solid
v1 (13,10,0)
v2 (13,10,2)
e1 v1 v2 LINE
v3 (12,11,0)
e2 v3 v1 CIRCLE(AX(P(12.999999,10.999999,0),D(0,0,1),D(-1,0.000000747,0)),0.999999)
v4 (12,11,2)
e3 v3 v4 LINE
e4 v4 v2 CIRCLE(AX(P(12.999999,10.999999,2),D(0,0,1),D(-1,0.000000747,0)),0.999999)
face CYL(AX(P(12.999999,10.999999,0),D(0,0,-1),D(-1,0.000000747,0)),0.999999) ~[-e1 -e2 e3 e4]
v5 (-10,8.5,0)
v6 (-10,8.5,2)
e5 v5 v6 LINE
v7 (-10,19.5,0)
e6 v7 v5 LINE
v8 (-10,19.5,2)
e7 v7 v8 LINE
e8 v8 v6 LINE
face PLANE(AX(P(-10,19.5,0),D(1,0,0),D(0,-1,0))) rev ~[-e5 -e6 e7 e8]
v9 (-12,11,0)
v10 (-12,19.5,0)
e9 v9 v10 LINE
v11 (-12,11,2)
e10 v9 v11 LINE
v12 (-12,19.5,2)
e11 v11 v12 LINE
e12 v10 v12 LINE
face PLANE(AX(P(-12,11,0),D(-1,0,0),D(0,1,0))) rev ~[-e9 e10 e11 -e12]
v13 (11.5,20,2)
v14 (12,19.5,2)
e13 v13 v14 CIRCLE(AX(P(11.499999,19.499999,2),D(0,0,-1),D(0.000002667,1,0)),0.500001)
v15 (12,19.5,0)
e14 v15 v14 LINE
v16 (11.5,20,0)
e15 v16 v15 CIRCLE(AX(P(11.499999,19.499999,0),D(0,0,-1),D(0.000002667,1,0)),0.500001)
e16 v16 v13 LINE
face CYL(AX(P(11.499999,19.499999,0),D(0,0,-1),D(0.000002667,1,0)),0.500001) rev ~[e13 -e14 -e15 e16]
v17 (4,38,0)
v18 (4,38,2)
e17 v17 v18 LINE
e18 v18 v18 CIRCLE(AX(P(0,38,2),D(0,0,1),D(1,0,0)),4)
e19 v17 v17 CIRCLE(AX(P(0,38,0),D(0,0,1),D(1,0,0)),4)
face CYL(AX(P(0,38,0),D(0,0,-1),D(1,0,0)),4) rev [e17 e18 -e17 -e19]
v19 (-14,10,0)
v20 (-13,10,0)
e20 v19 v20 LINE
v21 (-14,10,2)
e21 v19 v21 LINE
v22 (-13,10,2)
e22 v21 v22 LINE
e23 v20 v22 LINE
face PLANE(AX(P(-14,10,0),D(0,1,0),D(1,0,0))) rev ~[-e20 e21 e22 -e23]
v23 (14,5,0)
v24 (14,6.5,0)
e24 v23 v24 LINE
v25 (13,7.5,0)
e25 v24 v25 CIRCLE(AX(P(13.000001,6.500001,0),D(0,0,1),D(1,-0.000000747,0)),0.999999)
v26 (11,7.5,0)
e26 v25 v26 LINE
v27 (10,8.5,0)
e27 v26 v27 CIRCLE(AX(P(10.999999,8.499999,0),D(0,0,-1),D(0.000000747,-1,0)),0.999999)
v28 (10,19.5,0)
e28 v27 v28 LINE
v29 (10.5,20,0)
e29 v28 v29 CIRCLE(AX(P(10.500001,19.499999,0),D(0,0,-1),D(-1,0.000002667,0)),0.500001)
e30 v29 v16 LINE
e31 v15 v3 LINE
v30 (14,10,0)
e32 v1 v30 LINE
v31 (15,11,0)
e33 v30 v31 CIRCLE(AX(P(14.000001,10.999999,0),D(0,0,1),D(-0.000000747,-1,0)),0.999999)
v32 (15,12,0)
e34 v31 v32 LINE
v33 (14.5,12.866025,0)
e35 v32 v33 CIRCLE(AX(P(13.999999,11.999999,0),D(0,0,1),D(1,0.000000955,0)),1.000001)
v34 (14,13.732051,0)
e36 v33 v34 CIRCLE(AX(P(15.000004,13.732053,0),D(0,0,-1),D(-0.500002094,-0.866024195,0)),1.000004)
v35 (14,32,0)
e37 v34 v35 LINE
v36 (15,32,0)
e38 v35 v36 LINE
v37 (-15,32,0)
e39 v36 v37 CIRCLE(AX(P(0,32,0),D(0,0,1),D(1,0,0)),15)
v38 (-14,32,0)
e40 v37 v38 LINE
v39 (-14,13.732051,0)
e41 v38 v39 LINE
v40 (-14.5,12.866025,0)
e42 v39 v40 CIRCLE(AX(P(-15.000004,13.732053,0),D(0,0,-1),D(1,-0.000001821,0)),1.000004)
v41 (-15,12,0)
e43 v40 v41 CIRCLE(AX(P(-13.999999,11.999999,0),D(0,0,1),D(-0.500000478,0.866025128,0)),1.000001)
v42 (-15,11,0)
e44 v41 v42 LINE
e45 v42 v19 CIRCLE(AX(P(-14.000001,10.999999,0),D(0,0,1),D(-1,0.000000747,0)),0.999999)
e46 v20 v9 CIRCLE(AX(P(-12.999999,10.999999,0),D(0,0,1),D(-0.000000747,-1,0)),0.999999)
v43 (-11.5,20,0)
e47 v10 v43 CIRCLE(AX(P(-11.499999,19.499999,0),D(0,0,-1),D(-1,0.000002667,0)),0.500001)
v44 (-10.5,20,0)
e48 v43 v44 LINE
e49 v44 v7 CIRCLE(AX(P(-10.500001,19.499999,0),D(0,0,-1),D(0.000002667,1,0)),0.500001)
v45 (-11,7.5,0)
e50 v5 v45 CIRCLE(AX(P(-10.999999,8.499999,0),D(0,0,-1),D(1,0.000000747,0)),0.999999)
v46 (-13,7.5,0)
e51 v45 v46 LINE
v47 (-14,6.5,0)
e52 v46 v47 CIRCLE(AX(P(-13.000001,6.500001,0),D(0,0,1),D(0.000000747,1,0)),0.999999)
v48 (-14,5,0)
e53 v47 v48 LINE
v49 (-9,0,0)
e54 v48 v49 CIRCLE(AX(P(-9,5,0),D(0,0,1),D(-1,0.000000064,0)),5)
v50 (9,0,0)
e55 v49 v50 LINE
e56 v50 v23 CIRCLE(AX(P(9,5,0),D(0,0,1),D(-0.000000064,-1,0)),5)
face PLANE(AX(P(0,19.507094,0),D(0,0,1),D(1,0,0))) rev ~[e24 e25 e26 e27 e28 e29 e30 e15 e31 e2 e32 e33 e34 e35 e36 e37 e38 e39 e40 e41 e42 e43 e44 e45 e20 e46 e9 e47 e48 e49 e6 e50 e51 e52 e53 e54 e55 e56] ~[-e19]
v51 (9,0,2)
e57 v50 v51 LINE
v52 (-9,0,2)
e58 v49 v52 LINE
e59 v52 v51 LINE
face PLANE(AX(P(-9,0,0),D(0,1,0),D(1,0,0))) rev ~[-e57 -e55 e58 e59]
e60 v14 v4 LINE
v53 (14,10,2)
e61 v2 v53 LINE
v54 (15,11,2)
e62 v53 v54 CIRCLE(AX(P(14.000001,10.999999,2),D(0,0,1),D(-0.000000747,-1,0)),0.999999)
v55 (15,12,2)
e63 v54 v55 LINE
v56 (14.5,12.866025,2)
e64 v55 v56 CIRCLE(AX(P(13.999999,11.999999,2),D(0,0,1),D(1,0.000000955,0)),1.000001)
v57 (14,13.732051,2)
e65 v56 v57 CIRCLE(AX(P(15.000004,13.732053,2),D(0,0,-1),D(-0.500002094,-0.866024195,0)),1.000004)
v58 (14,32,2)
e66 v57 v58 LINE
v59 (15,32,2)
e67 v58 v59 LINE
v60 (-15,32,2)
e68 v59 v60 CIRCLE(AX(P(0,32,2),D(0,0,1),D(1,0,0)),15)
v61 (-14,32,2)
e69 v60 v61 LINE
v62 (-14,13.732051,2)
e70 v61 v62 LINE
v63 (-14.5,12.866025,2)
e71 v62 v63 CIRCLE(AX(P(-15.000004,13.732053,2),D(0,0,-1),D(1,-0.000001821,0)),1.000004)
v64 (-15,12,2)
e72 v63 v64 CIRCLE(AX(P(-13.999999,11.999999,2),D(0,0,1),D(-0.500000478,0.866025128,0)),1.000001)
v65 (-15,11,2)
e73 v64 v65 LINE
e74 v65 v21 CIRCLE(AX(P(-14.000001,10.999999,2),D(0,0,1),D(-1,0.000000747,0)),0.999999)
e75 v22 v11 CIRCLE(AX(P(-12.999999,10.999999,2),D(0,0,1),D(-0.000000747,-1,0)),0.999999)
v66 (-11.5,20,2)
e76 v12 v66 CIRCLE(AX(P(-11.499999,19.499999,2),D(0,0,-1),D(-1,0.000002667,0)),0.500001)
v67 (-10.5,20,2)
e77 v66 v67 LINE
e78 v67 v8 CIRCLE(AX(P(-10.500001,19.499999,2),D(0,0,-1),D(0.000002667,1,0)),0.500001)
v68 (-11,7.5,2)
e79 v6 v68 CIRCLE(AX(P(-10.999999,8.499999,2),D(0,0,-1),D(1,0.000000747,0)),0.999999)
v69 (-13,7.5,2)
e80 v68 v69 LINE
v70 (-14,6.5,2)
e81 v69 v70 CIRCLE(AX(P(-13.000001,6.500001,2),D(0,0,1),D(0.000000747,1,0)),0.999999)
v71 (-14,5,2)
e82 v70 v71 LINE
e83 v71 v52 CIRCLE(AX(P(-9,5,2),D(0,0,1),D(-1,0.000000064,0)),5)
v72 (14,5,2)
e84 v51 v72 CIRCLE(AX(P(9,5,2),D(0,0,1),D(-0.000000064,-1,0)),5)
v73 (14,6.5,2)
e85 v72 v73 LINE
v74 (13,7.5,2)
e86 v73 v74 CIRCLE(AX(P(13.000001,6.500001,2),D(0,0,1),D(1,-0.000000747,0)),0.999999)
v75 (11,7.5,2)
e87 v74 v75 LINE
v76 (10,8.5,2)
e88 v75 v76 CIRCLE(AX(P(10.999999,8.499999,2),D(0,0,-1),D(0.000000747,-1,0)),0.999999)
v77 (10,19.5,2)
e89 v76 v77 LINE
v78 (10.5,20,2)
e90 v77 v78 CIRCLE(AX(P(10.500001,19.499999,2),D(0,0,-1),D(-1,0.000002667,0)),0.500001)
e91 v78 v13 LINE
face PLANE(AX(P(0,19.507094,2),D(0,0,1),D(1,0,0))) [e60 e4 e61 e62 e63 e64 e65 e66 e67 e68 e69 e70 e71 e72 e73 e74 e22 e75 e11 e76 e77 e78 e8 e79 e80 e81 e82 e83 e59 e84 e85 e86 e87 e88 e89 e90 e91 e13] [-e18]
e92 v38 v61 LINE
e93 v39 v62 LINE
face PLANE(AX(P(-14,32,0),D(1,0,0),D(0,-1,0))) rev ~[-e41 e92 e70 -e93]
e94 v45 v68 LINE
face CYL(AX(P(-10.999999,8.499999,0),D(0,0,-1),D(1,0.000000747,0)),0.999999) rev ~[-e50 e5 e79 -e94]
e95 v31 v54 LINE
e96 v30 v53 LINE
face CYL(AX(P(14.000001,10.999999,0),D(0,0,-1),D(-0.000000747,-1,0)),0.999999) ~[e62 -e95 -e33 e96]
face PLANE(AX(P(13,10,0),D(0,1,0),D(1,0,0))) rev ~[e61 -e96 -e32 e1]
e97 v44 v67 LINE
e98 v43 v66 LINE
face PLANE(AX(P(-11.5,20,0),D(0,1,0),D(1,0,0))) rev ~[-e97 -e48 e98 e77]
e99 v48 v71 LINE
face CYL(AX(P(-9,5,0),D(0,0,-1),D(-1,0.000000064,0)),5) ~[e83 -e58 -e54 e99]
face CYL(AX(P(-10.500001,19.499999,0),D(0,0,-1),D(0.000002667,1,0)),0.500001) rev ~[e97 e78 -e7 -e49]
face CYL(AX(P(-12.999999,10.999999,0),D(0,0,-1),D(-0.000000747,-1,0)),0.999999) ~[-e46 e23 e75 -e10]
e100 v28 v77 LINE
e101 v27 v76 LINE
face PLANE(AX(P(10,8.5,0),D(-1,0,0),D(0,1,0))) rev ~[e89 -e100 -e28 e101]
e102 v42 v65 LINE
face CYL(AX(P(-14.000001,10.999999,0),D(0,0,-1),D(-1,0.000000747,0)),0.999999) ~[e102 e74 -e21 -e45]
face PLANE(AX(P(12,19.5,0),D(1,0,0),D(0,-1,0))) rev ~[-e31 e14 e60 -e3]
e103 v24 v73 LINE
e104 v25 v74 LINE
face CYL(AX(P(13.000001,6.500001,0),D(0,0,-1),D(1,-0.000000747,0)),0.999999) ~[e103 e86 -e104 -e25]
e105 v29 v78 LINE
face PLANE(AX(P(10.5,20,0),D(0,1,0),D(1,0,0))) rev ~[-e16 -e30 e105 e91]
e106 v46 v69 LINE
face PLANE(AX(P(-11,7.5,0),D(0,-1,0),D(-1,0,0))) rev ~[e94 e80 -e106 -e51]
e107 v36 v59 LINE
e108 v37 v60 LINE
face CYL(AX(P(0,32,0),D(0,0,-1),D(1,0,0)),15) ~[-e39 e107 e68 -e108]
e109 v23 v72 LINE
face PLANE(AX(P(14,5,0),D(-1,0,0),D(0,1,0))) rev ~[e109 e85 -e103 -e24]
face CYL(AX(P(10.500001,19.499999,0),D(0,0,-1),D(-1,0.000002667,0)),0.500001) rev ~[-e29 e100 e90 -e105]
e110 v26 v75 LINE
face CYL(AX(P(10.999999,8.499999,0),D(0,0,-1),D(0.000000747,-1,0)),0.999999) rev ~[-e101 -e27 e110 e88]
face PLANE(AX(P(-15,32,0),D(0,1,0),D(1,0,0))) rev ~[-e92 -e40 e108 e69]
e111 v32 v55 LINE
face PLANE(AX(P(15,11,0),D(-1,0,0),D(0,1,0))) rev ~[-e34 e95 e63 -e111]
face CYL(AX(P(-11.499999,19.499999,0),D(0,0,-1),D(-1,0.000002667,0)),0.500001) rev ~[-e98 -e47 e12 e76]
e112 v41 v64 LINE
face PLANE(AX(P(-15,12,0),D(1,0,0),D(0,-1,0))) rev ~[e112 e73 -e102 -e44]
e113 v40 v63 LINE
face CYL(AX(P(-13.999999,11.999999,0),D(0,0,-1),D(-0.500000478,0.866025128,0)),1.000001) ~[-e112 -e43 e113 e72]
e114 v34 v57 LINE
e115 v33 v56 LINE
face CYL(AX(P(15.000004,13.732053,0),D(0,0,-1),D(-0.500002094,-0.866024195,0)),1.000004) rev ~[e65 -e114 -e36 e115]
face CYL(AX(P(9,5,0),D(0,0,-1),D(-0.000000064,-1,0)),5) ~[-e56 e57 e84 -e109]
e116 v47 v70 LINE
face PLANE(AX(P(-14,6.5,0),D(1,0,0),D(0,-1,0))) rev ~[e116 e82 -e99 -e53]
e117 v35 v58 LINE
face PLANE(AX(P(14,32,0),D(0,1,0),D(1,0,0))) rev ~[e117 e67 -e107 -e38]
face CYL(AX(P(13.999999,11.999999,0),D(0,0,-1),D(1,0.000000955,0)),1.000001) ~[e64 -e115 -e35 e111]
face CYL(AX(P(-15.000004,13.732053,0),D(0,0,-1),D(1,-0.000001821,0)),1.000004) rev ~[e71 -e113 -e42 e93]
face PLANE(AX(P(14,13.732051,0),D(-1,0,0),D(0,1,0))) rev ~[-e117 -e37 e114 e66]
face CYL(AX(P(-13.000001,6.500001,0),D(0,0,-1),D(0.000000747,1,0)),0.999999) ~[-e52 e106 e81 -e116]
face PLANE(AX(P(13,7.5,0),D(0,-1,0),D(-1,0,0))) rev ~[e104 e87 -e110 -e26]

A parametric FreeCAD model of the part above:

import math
import FreeCAD as App
import Part
import Sketcher
Q = App.Units.Quantity

doc = App.newDocument("Part")
body = doc.addObject("PartDesign::Body", "Body")

# Sketch on XY plane
sketch1 = body.newObject("Sketcher::SketchObject", "Sketch")
sketch1.AttachmentSupport = (doc.getObject("XY_Plane"), [""])
sketch1.MapMode = "FlatFace"
sketch1.addGeometry([
    Part.ArcOfCircle(Part.Circle(App.Vector(-9, 5, 0), App.Vector(0, 0, 1), 5), math.radians(180), math.radians(270)),  # 0
    Part.LineSegment(App.Vector(-9, 0, 0), App.Vector(9, 0, 0)),  # 1
    Part.ArcOfCircle(Part.Circle(App.Vector(9, 5, 0), App.Vector(0, 0, 1), 5), math.radians(-90), math.radians(0)),  # 2
    Part.LineSegment(App.Vector(14, 5, 0), App.Vector(14, 6.5, 0)),  # 3
    Part.ArcOfCircle(Part.Circle(App.Vector(13, 6.5, 0), App.Vector(0, 0, 1), 1), math.radians(0), math.radians(90)),  # 4
    Part.LineSegment(App.Vector(13, 7.5, 0), App.Vector(11, 7.5, 0)),  # 5
    Part.ArcOfCircle(Part.Circle(App.Vector(11, 8.5, 0), App.Vector(0, 0, 1), 1), math.radians(180), math.radians(270)),  # 6
    Part.LineSegment(App.Vector(10, 8.5, 0), App.Vector(10, 19.5, 0)),  # 7
    Part.ArcOfCircle(Part.Circle(App.Vector(10.5, 19.5, 0), App.Vector(0, 0, 1), 0.5), math.radians(90), math.radians(180)),  # 8
    Part.LineSegment(App.Vector(10.5, 20, 0), App.Vector(11.5, 20, 0)),  # 9
    Part.ArcOfCircle(Part.Circle(App.Vector(11.5, 19.5, 0), App.Vector(0, 0, 1), 0.5), math.radians(0), math.radians(90)),  # 10
    Part.LineSegment(App.Vector(12, 19.5, 0), App.Vector(12, 11, 0)),  # 11
    Part.ArcOfCircle(Part.Circle(App.Vector(13, 11, 0), App.Vector(0, 0, 1), 1), math.radians(180), math.radians(270)),  # 12
    Part.LineSegment(App.Vector(13, 10, 0), App.Vector(14, 10, 0)),  # 13
    Part.ArcOfCircle(Part.Circle(App.Vector(14, 11, 0), App.Vector(0, 0, 1), 1), math.radians(-90), math.radians(0)),  # 14
    Part.LineSegment(App.Vector(15, 11, 0), App.Vector(15, 12, 0)),  # 15
    Part.ArcOfCircle(Part.Circle(App.Vector(14, 12, 0), App.Vector(0, 0, 1), 1), math.radians(0), math.radians(60)),  # 16
    Part.ArcOfCircle(Part.Circle(App.Vector(15, 13.7, 0), App.Vector(0, 0, 1), 1), math.radians(-180), math.radians(-120)),  # 17
    Part.LineSegment(App.Vector(14, 13.7, 0), App.Vector(14, 32, 0)),  # 18
    Part.LineSegment(App.Vector(14, 32, 0), App.Vector(15, 32, 0)),  # 19
    Part.ArcOfCircle(Part.Circle(App.Vector(0, 32, 0), App.Vector(0, 0, 1), 15), math.radians(0), math.radians(180)),  # 20
    Part.LineSegment(App.Vector(-15, 32, 0), App.Vector(-14, 32, 0)),  # 21
    Part.LineSegment(App.Vector(-14, 32, 0), App.Vector(-14, 13.7, 0)),  # 22
    Part.ArcOfCircle(Part.Circle(App.Vector(-15, 13.7, 0), App.Vector(0, 0, 1), 1), math.radians(-60), math.radians(0)),  # 23
    Part.ArcOfCircle(Part.Circle(App.Vector(-14, 12, 0), App.Vector(0, 0, 1), 1), math.radians(120), math.radians(180)),  # 24
    Part.LineSegment(App.Vector(-15, 12, 0), App.Vector(-15, 11, 0)),  # 25
    Part.ArcOfCircle(Part.Circle(App.Vector(-14, 11, 0), App.Vector(0, 0, 1), 1), math.radians(180), math.radians(270)),  # 26
    Part.LineSegment(App.Vector(-14, 10, 0), App.Vector(-13, 10, 0)),  # 27
    Part.ArcOfCircle(Part.Circle(App.Vector(-13, 11, 0), App.Vector(0, 0, 1), 1), math.radians(-90), math.radians(0)),  # 28
    Part.LineSegment(App.Vector(-12, 11, 0), App.Vector(-12, 19.5, 0)),  # 29
    Part.ArcOfCircle(Part.Circle(App.Vector(-11.5, 19.5, 0), App.Vector(0, 0, 1), 0.5), math.radians(90), math.radians(180)),  # 30
    Part.LineSegment(App.Vector(-11.5, 20, 0), App.Vector(-10.5, 20, 0)),  # 31
    Part.ArcOfCircle(Part.Circle(App.Vector(-10.5, 19.5, 0), App.Vector(0, 0, 1), 0.5), math.radians(0), math.radians(90)),  # 32
    Part.LineSegment(App.Vector(-10, 19.5, 0), App.Vector(-10, 8.5, 0)),  # 33
    Part.ArcOfCircle(Part.Circle(App.Vector(-11, 8.5, 0), App.Vector(0, 0, 1), 1), math.radians(-90), math.radians(0)),  # 34
    Part.LineSegment(App.Vector(-11, 7.5, 0), App.Vector(-13, 7.5, 0)),  # 35
    Part.ArcOfCircle(Part.Circle(App.Vector(-13, 6.5, 0), App.Vector(0, 0, 1), 1), math.radians(90), math.radians(180)),  # 36
    Part.LineSegment(App.Vector(-14, 6.5, 0), App.Vector(-14, 5, 0)),  # 37
    Part.Circle(App.Vector(0, 38, 0), App.Vector(0, 0, 1), 4),  # 38
], False)
sketch1.addConstraint([
    Sketcher.Constraint("Tangent", 0, 2, 1, 1),
    Sketcher.Constraint("Tangent", 1, 2, 2, 1),
    Sketcher.Constraint("Tangent", 2, 2, 3, 1),
    Sketcher.Constraint("Tangent", 3, 2, 4, 1),
    Sketcher.Constraint("Tangent", 4, 2, 5, 1),
    Sketcher.Constraint("Tangent", 5, 2, 6, 2),
    Sketcher.Constraint("Tangent", 6, 1, 7, 1),
    Sketcher.Constraint("Coincident", 7, 2, 8, 2),
    Sketcher.Constraint("Coincident", 8, 1, 9, 1),
    Sketcher.Constraint("Coincident", 9, 2, 10, 2),
    Sketcher.Constraint("Coincident", 10, 1, 11, 1),
    Sketcher.Constraint("Tangent", 11, 2, 12, 1),
    Sketcher.Constraint("Tangent", 12, 2, 13, 1),
    Sketcher.Constraint("Tangent", 13, 2, 14, 1),
    Sketcher.Constraint("Tangent", 14, 2, 15, 1),
    Sketcher.Constraint("Tangent", 15, 2, 16, 1),
    Sketcher.Constraint("Tangent", 16, 2, 17, 2),
    Sketcher.Constraint("Tangent", 17, 1, 18, 1),
    Sketcher.Constraint("Coincident", 18, 2, 19, 1),
    Sketcher.Constraint("Coincident", 19, 2, 20, 1),
    Sketcher.Constraint("Coincident", 20, 2, 21, 1),
    Sketcher.Constraint("Coincident", 21, 2, 22, 1),
    Sketcher.Constraint("Tangent", 22, 2, 23, 2),
    Sketcher.Constraint("Tangent", 23, 1, 24, 1),
    Sketcher.Constraint("Tangent", 24, 2, 25, 1),
    Sketcher.Constraint("Tangent", 25, 2, 26, 1),
    Sketcher.Constraint("Tangent", 26, 2, 27, 1),
    Sketcher.Constraint("Tangent", 27, 2, 28, 1),
    Sketcher.Constraint("Tangent", 28, 2, 29, 1),
    Sketcher.Constraint("Coincident", 29, 2, 30, 2),
    Sketcher.Constraint("Coincident", 30, 1, 31, 1),
    Sketcher.Constraint("Coincident", 31, 2, 32, 2),
    Sketcher.Constraint("Coincident", 32, 1, 33, 1),
    Sketcher.Constraint("Tangent", 33, 2, 34, 2),
    Sketcher.Constraint("Tangent", 34, 1, 35, 1),
    Sketcher.Constraint("Tangent", 35, 2, 36, 1),
    Sketcher.Constraint("Tangent", 36, 2, 37, 1),
    Sketcher.Constraint("Tangent", 37, 2, 0, 1),
    Sketcher.Constraint("Horizontal", 1),
    Sketcher.Constraint("Vertical", 3),
    Sketcher.Constraint("Horizontal", 5),
    Sketcher.Constraint("Vertical", 7),
    Sketcher.Constraint("Horizontal", 9),
    Sketcher.Constraint("Vertical", 11),
    Sketcher.Constraint("Horizontal", 13),
    Sketcher.Constraint("Vertical", 15),
    Sketcher.Constraint("Vertical", 18),
    Sketcher.Constraint("Horizontal", 19),
    Sketcher.Constraint("Horizontal", 21),
    Sketcher.Constraint("Vertical", 22),
    Sketcher.Constraint("Vertical", 25),
    Sketcher.Constraint("Horizontal", 27),
    Sketcher.Constraint("Vertical", 29),
    Sketcher.Constraint("Horizontal", 31),
    Sketcher.Constraint("Vertical", 33),
    Sketcher.Constraint("Horizontal", 35),
    Sketcher.Constraint("Vertical", 37),
    Sketcher.Constraint("Equal", 0, 2),
    Sketcher.Constraint("Equal", 4, 6),
    Sketcher.Constraint("Equal", 8, 10),
    Sketcher.Constraint("Equal", 6, 12),
    Sketcher.Constraint("Equal", 12, 14),
    Sketcher.Constraint("Equal", 14, 16),
    Sketcher.Constraint("Equal", 17, 23),
    Sketcher.Constraint("Equal", 16, 24),
    Sketcher.Constraint("Equal", 24, 26),
    Sketcher.Constraint("Equal", 26, 28),
    Sketcher.Constraint("Equal", 10, 30),
    Sketcher.Constraint("Equal", 30, 32),
    Sketcher.Constraint("Equal", 28, 34),
    Sketcher.Constraint("Equal", 34, 36),
    Sketcher.Constraint("Symmetric", 0, 2, 1, 2, -1, 1),
    Sketcher.Constraint("Symmetric", 17, 3, 23, 3, -2),
    Sketcher.Constraint("Symmetric", 14, 3, 26, 3, -2),
    Sketcher.Constraint("Symmetric", 10, 3, 30, 3, -2),
    Sketcher.Constraint("Symmetric", 6, 3, 34, 3, -2),
    Sketcher.Constraint("Symmetric", 19, 2, 20, 2, -2),
    Sketcher.Constraint("PointOnObject", 38, 3, -2),
    Sketcher.Constraint("Horizontal", 32, 3, 7, 2),
    Sketcher.Constraint("Horizontal", 7, 2, 10, 1),
    Sketcher.Constraint("Horizontal", 20, 3, 18, 2),
    Sketcher.Constraint("Horizontal", 10, 1, 29, 2),
    Sketcher.Constraint("Horizontal", 29, 2, 32, 1),
    Sketcher.Constraint("Vertical", 4, 3, 12, 3),
    Sketcher.Constraint("Vertical", 16, 3, 2, 2),
    Sketcher.Constraint("Vertical", 10, 3, 9, 2),
    Sketcher.Constraint("Vertical", 13, 2, 17, 1),
    Sketcher.Constraint("Vertical", 15, 2, 19, 2),
    Sketcher.Constraint("Vertical", 32, 3, 31, 2),
    Sketcher.Constraint("Equal", 9, 13),
    Sketcher.Constraint("Equal", 27, 31),
    Sketcher.Constraint("Equal", 31, 15),
    Sketcher.Constraint("Diameter", 38, Q("8 mm")),
    Sketcher.Constraint("Radius", 0, Q("5 mm")),
    Sketcher.Constraint("Radius", 4, Q("0.999999 mm")),
    Sketcher.Constraint("Radius", 20, Q("15 mm")),
    Sketcher.Constraint("Radius", 8, Q("0.500001 mm")),
    Sketcher.Constraint("DistanceX", 5, 2, 5, 1, Q("2 mm")),
    Sketcher.Constraint("DistanceY", 7, 1, 7, 2, Q("11 mm")),
    Sketcher.Constraint("DistanceY", 3, 1, 3, 2, Q("1.5 mm")),
    Sketcher.Constraint("DistanceY", 11, 2, 11, 1, Q("8.5 mm")),
    Sketcher.Constraint("DistanceY", -1, 1, 20, 3, Q("32 mm")),
    Sketcher.Constraint("DistanceY", -1, 1, 38, 3, Q("38 mm")),
    Sketcher.Constraint("DistanceX", -1, 1, 16, 2, Q("14.5 mm")),
])
pad1 = body.newObject("PartDesign::Pad", "Pad")
pad1.Profile = sketch1
pad1.Length = 2

doc.recompute()
